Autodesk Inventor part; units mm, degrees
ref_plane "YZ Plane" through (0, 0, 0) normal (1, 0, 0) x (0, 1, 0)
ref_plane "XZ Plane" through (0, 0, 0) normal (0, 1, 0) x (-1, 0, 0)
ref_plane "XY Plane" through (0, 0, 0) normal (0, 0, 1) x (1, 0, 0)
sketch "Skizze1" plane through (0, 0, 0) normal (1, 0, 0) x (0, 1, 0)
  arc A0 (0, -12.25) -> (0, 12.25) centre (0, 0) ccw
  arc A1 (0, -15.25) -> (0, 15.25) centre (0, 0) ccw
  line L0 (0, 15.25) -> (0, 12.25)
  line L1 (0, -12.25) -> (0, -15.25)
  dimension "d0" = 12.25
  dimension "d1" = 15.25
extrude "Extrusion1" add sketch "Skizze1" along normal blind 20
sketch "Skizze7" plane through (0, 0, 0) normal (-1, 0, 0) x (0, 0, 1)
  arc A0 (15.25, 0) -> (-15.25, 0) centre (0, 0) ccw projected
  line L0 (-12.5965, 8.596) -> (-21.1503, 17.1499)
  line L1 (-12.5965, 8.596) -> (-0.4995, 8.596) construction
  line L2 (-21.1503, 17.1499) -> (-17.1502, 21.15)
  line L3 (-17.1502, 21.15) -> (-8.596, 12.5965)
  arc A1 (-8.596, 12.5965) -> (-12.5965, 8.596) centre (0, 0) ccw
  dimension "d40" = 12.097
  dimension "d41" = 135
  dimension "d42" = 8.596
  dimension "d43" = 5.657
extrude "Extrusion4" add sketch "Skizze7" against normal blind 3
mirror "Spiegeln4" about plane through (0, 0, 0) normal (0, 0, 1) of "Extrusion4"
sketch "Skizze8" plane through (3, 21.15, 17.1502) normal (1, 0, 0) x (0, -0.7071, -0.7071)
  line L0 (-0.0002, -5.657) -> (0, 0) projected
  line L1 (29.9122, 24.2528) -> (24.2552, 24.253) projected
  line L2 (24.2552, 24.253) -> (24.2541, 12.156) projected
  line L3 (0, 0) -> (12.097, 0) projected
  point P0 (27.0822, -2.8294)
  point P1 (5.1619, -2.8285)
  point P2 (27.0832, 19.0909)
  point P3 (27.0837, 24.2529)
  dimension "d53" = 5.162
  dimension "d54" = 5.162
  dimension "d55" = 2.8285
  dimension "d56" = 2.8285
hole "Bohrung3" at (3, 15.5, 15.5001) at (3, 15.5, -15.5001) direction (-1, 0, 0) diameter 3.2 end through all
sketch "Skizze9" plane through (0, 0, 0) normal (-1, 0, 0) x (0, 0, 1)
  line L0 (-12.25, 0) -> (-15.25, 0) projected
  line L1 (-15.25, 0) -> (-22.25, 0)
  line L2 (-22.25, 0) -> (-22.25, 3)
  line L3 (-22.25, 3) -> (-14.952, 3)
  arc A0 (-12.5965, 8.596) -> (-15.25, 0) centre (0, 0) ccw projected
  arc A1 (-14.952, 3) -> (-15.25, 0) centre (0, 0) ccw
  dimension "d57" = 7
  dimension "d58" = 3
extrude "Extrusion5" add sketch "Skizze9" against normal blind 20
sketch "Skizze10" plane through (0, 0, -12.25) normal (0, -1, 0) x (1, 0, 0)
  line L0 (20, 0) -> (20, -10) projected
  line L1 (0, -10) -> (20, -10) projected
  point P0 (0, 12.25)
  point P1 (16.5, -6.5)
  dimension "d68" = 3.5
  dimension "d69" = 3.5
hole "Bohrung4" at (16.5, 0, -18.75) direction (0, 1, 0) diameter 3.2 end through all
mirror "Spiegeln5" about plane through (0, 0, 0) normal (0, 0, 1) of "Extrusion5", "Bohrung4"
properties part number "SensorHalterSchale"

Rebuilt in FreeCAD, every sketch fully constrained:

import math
import FreeCAD as App
import Part
import Sketcher
Q = App.Units.Quantity

doc = App.newDocument("Part")
body = doc.addObject("PartDesign::Body", "Body")

# Sketch on YZ plane
sketch1 = body.newObject("Sketcher::SketchObject", "Sketch")
sketch1.AttachmentSupport = (doc.getObject("YZ_Plane"), [""])
sketch1.MapMode = "FlatFace"
sketch1.addGeometry([
    Part.ArcOfCircle(Part.Circle(App.Vector(0, 0, 0), App.Vector(0, 0, 1), 12.2), math.radians(-90), math.radians(90)),
    Part.LineSegment(App.Vector(0, -12.2, 0), App.Vector(0, -15.2, 0)),
    Part.ArcOfCircle(Part.Circle(App.Vector(0, 0, 0), App.Vector(0, 0, 1), 15.2), math.radians(-90), math.radians(90)),
    Part.LineSegment(App.Vector(0, 15.2, 0), App.Vector(0, 12.2, 0)),
], False)
sketch1.addConstraint([
    Sketcher.Constraint("Coincident", 0, 1, 1, 1),
    Sketcher.Constraint("Coincident", 1, 2, 2, 1),
    Sketcher.Constraint("Coincident", 2, 2, 3, 1),
    Sketcher.Constraint("Coincident", 3, 2, 0, 2),
    Sketcher.Constraint("Vertical", 1),
    Sketcher.Constraint("Vertical", 3),
    Sketcher.Constraint("Coincident", 0, 3, -1, 1),
    Sketcher.Constraint("Coincident", 2, 3, -1, 1),
    Sketcher.Constraint("PointOnObject", 0, 1, -2),
    Sketcher.Constraint("PointOnObject", 2, 2, -2),
    Sketcher.Constraint("Radius", 0, 12.25),
    Sketcher.Constraint("Radius", 2, 15.25),
])
pad1 = body.newObject("PartDesign::Pad", "Pad")
pad1.Profile = sketch1
pad1.Length = 20

# Sketch on YZ plane
sketch2 = body.newObject("Sketcher::SketchObject", "Sketch001")
sketch2.AttachmentSupport = (doc.getObject("YZ_Plane"), [""])
sketch2.MapMode = "FlatFace"
sketch2.addGeometry([
    Part.ArcOfCircle(Part.Circle(App.Vector(0, 0, 0), App.Vector(0, 0, 1), 15), math.radians(-56), math.radians(-34)),
    Part.LineSegment(App.Vector(13, -9, 0), App.Vector(21, -17, 0)),
    Part.LineSegment(App.Vector(21, -17, 0), App.Vector(17, -21, 0)),
    Part.LineSegment(App.Vector(17, -21, 0), App.Vector(9, -13, 0)),
], False)
sketch2.addConstraint([
    Sketcher.Constraint("Coincident", 0, 2, 1, 1),
    Sketcher.Constraint("Coincident", 1, 2, 2, 1),
    Sketcher.Constraint("Coincident", 2, 2, 3, 1),
    Sketcher.Constraint("Coincident", 3, 2, 0, 1),
    Sketcher.Constraint("Coincident", 0, 3, -1, 1),
    Sketcher.Constraint("Perpendicular", 1, 2),
    Sketcher.Constraint("Perpendicular", 2, 3),
    Sketcher.Constraint("Equal", 1, 3),
    Sketcher.Constraint("Angle", 2, Q("-135 deg")),
    Sketcher.Constraint("Radius", 0, 15.25),
    Sketcher.Constraint("Distance", 1, 12.097),
    Sketcher.Constraint("Distance", 2, 5.657),
])
pad2 = body.newObject("PartDesign::Pad", "Pad001")
pad2.Profile = sketch2
pad2.Length = 3
doc.recompute()

mirrored = body.newObject("PartDesign::Mirrored", "Mirrored")
mirrored.Originals = [pad2]
mirrored.MirrorPlane = (doc.getObject("XY_Plane"), [""])
body.Tip = mirrored

# Sketch on YZ plane
sketch3 = body.newObject("Sketcher::SketchObject", "Sketch002")
sketch3.AttachmentSupport = (doc.getObject("YZ_Plane"), [""])
sketch3.MapMode = "FlatFace"
sketch3.AttachmentOffset = App.Placement(App.Vector(0, 0, 3), App.Rotation())
sketch3.addGeometry([
    Part.Circle(App.Vector(15.5, 15.5, 0), App.Vector(0, 0, 1), 1.6),
    Part.Circle(App.Vector(15.5, -15.5, 0), App.Vector(0, 0, 1), 1.6),
], False)
sketch3.addConstraint([
    Sketcher.Constraint("Equal", 0, 1),
    Sketcher.Constraint("Symmetric", 0, 3, 1, 3, -1),
    Sketcher.Constraint("Diameter", 0, 3.2),
    Sketcher.Constraint("DistanceX", -1, 1, 0, 3, 15.5),
    Sketcher.Constraint("DistanceY", -1, 1, 0, 3, 15.5),
])
doc.recompute()
hole = body.newObject("PartDesign::Hole", "Hole")
hole.Profile = sketch3
hole.ThreadType = "None"
hole.Diameter = 3.2
hole.DepthType = "ThroughAll"

# Sketch on YZ plane
sketch4 = body.newObject("Sketcher::SketchObject", "Sketch003")
sketch4.AttachmentSupport = (doc.getObject("YZ_Plane"), [""])
sketch4.MapMode = "FlatFace"
sketch4.addGeometry([
    Part.LineSegment(App.Vector(0, -22.2, 0), App.Vector(0, -15.2, 0)),
    Part.ArcOfCircle(Part.Circle(App.Vector(0, 0, 0), App.Vector(0, 0, 1), 15.2), math.radians(-90), math.radians(-78.65)),
    Part.LineSegment(App.Vector(3, -15, 0), App.Vector(3, -22.2, 0)),
    Part.LineSegment(App.Vector(3, -22.2, 0), App.Vector(0, -22.2, 0)),
], False)
sketch4.addConstraint([
    Sketcher.Constraint("Coincident", 0, 2, 1, 1),
    Sketcher.Constraint("Coincident", 1, 2, 2, 1),
    Sketcher.Constraint("Coincident", 2, 2, 3, 1),
    Sketcher.Constraint("Coincident", 3, 2, 0, 1),
    Sketcher.Constraint("Vertical", 0),
    Sketcher.Constraint("Vertical", 2),
    Sketcher.Constraint("Horizontal", 3),
    Sketcher.Constraint("Coincident", 1, 3, -1, 1),
    Sketcher.Constraint("PointOnObject", 0, 2, -2),
    Sketcher.Constraint("DistanceX", 3, 2, 3, 1, 3.0),
    Sketcher.Constraint("DistanceY", 0, 1, 0, 2, 7.0),
    Sketcher.Constraint("Radius", 1, 15.25),
])
pad3 = body.newObject("PartDesign::Pad", "Pad002")
pad3.Profile = sketch4
pad3.Length = 20

# Sketch on XZ plane
sketch5 = body.newObject("Sketcher::SketchObject", "Sketch004")
sketch5.AttachmentSupport = (doc.getObject("XZ_Plane"), [""])
sketch5.MapMode = "FlatFace"
sketch5.addGeometry(Part.Circle(App.Vector(16.5, -18.8, 0), App.Vector(0, 0, 1), 1.6), False)
sketch5.addConstraint([
    Sketcher.Constraint("Diameter", 0, 3.2),
    Sketcher.Constraint("DistanceX", -1, 1, 0, 3, 16.5),
    Sketcher.Constraint("DistanceY", 0, 3, -1, 1, 18.75),
])
doc.recompute()
hole2 = body.newObject("PartDesign::Hole", "Hole001")
hole2.Profile = sketch5
hole2.ThreadType = "None"
hole2.Diameter = 3.2
hole2.DepthType = "ThroughAll"
doc.recompute()

mirrored2 = body.newObject("PartDesign::Mirrored", "Mirrored001")
mirrored2.Originals = [pad3, hole2]
mirrored2.MirrorPlane = (doc.getObject("XY_Plane"), [""])
body.Tip = mirrored2

doc.recompute()
